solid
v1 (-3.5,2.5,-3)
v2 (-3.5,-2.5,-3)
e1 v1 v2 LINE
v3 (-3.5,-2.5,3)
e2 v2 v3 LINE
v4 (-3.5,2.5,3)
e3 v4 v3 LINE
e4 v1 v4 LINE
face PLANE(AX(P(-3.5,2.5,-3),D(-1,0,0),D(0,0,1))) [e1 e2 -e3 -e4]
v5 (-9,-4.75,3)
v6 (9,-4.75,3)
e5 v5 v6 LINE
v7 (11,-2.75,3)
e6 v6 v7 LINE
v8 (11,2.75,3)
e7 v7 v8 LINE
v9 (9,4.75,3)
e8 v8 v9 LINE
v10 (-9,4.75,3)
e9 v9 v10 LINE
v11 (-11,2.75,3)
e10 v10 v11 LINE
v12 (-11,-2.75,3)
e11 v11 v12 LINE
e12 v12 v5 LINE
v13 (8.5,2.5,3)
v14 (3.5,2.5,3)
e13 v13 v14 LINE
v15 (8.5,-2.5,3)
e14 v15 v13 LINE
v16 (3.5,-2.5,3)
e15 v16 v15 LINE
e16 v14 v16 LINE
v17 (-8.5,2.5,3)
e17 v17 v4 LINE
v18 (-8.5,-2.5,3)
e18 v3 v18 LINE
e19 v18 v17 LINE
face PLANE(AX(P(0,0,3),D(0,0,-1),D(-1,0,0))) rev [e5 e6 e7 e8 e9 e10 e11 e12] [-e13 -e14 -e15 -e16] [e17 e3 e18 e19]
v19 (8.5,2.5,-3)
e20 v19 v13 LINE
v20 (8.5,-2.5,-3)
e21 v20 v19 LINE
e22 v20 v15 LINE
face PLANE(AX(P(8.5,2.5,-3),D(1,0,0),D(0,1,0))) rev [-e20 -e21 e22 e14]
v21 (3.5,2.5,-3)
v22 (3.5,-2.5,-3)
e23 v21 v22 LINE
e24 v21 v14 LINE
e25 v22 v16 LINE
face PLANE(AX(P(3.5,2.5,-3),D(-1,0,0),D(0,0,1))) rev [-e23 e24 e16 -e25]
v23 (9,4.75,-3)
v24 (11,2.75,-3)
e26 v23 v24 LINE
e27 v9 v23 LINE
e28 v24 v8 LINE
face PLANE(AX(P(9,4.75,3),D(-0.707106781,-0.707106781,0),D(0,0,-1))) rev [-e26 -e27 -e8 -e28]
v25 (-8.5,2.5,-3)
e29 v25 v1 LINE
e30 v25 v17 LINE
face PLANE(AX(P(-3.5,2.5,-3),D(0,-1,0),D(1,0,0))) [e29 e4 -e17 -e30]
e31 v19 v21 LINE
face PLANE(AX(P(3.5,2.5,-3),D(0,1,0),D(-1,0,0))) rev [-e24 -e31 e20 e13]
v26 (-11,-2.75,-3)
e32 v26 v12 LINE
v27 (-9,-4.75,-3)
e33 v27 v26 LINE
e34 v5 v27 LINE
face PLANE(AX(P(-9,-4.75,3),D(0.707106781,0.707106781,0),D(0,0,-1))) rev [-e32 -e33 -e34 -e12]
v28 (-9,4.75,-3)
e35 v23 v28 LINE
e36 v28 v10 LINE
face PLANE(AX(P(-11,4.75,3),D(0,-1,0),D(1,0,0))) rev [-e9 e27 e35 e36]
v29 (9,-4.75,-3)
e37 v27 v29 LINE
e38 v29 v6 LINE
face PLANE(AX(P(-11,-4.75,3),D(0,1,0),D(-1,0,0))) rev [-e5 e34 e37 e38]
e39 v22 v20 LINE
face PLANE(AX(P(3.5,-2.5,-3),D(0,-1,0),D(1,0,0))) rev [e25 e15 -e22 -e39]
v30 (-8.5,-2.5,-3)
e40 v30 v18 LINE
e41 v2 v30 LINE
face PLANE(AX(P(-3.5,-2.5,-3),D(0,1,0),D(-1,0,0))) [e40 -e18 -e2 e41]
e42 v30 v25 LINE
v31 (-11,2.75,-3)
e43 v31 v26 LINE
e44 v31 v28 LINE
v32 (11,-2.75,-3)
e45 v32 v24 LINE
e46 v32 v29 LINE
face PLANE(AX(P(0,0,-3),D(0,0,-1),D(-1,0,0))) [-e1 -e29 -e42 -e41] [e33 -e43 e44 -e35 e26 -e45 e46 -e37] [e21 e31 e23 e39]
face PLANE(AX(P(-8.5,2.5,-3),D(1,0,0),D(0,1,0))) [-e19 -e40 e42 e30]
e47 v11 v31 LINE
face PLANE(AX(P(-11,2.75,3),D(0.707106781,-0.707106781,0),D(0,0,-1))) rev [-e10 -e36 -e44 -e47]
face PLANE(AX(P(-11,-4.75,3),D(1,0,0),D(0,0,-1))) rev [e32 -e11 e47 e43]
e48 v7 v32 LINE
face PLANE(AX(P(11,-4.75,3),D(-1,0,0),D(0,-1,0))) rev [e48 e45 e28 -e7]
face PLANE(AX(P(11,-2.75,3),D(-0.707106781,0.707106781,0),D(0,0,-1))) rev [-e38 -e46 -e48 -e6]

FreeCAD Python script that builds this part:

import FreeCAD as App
import Part
import Sketcher

V = App.Vector
Q = App.Units.Quantity


def edges_at(feature, points):
    """Names of the edges that pass closest to the given points."""
    edges = feature.Shape.Edges
    near = lambda p: min(range(len(edges)), key=lambda i: edges[i].distToShape(Part.Vertex(*p))[0])
    return sorted({f"Edge{near(p) + 1}" for p in points})


def add_polygon(sketch, points):
    """Adds a closed chain of lines whose ends are joined by coincident constraints."""
    first, n = sketch.GeometryCount, len(points)
    for a, b in zip(points, points[1:] + points[:1]):
        sketch.addGeometry(Part.LineSegment(App.Vector(*a, 0), App.Vector(*b, 0)), False)
    for i in range(n):
        sketch.addConstraint(Sketcher.Constraint("Coincident", first + i, 2, first + (i + 1) % n, 1))

doc = App.newDocument("Part")
body = doc.addObject("PartDesign::Body", "Body")

# Sketch on XY plane
sketch1 = body.newObject("Sketcher::SketchObject", "Sketch")
sketch1.AttachmentSupport = (doc.getObject("XY_Plane"), [""])
sketch1.MapMode = "FlatFace"
add_polygon(sketch1, [(-11, 5), (-11, -5), (11, -5), (11, 5)])  # lines 0-3
sketch1.addConstraint(Sketcher.Constraint("Vertical", 0))
sketch1.addConstraint(Sketcher.Constraint("Horizontal", 1))
sketch1.addConstraint(Sketcher.Constraint("Vertical", 2))
sketch1.addConstraint(Sketcher.Constraint("Horizontal", 3))
sketch1.addConstraint(Sketcher.Constraint("Symmetric", 0, 2, 2, 2, -1, 1))
sketch1.addConstraint(Sketcher.Constraint("DistanceX", 1, 1, 1, 2, Q("22 mm")))
sketch1.addConstraint(Sketcher.Constraint("DistanceY", 0, 2, 0, 1, Q("9.5 mm")))
pad1 = body.newObject("PartDesign::Pad", "Pad")
pad1.Profile = sketch1
pad1.Length = 6
pad1.Midplane = True

# Sketch on XY plane
sketch2 = body.newObject("Sketcher::SketchObject", "Sketch001")
sketch2.AttachmentSupport = (doc.getObject("XY_Plane"), [""])
sketch2.MapMode = "FlatFace"
sketch2.AttachmentOffset = App.Placement(V(0, 0, 3), App.Rotation())
add_polygon(sketch2, [(4, 2), (4, -2), (8, -2), (8, 2)])  # lines 0-3
sketch2.addConstraint(Sketcher.Constraint("Vertical", 0))
sketch2.addConstraint(Sketcher.Constraint("Horizontal", 1))
sketch2.addConstraint(Sketcher.Constraint("Vertical", 2))
sketch2.addConstraint(Sketcher.Constraint("Horizontal", 3))
sketch2.addConstraint(Sketcher.Constraint("Equal", 3, 0))
sketch2.addConstraint(Sketcher.Constraint("DistanceX", 1, 1, 1, 2, Q("5 mm")))
sketch2.addConstraint(Sketcher.Constraint("DistanceX", -1, 1, 0, 2, Q("3.5 mm")))
sketch2.addConstraint(Sketcher.Constraint("DistanceY", 0, 2, -1, 1, Q("2.5 mm")))
pocket1 = body.newObject("PartDesign::Pocket", "Pocket")
pocket1.Profile = sketch2
pocket1.Type = "ThroughAll"
doc.recompute()

mirrored = body.newObject("PartDesign::Mirrored", "Mirrored")
mirrored.Originals = [pocket1]
mirrored.MirrorPlane = (doc.getObject("YZ_Plane"), [""])
body.Tip = mirrored
doc.recompute()

chamfer = body.newObject("PartDesign::Chamfer", "Chamfer")
chamfer.Base = (mirrored, edges_at(mirrored, [
    (11, -4.75, 0),
    (-11, -4.75, 0),
    (-11, 4.75, 0),
    (11, 4.75, 0),
]))
chamfer.Size = 2

doc.recompute()
